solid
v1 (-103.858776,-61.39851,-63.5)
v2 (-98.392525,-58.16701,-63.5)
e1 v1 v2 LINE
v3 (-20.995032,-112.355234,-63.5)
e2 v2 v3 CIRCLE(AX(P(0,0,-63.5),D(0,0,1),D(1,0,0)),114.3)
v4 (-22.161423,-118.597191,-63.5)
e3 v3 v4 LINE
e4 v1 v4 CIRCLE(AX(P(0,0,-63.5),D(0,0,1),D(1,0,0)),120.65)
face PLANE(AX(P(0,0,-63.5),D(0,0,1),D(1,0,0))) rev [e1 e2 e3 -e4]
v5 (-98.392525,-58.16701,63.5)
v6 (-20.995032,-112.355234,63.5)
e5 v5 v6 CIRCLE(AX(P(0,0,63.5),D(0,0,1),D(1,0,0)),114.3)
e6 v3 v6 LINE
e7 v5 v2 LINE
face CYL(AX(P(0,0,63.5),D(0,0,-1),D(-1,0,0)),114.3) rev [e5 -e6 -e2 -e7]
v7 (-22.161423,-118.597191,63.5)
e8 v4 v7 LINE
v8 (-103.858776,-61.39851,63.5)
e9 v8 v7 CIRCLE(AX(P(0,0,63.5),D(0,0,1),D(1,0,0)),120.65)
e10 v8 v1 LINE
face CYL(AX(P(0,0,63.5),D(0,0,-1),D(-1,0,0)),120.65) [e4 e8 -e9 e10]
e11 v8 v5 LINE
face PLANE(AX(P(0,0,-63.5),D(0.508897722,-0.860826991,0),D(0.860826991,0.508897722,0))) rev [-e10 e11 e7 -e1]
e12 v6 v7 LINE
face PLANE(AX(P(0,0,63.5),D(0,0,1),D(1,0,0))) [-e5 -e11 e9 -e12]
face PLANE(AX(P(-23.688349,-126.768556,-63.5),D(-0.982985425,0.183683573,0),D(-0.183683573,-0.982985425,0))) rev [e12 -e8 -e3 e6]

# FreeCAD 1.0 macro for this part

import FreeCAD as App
import Part
import Sketcher

V = App.Vector
Q = App.Units.Quantity

doc = App.newDocument("Part")
params = doc.addObject("Spreadsheet::Sheet", "Params")
for row, (alias, value) in enumerate([
    ("sketch1_diameter", "9 in"),
    ("sketch1_diameter2", "9.5 in"),
    ("pad1_length", "5 in"),
    ("pocket1_length", "5 in"),
], start=1):
    params.set(f"A{row}", alias)
    params.set(f"B{row}", "=" + value)
    params.setAlias(f"B{row}", alias)

body = doc.addObject("PartDesign::Body", "Body")

# Sketch on XY plane
sketch1 = body.newObject("Sketcher::SketchObject", "Sketch")
sketch1.AttachmentSupport = (doc.getObject("XY_Plane"), [""])
sketch1.MapMode = "FlatFace"
sketch1.addGeometry([
    Part.Circle(V(0, 0, 0), V(0, 0, 1), 121),
    Part.Circle(V(0, 0, 0), V(0, 0, 1), 114),
], False)
sketch1.addConstraint([
    Sketcher.Constraint("Coincident", 0, 3, -1, 1),
    Sketcher.Constraint("Coincident", 1, 3, -1, 1),
    Sketcher.Constraint("Diameter", 1, Q("9 in")),
    Sketcher.Constraint("Diameter", 0, Q("9.5 in")),
])
sketch1.setExpression("Constraints[2]", "Params.sketch1_diameter")
sketch1.setExpression("Constraints[3]", "Params.sketch1_diameter2")
pad1 = body.newObject("PartDesign::Pad", "Pad")
pad1.Profile = sketch1
pad1.setExpression("Length", "Params.pad1_length")
pad1.Midplane = True

# Sketch on XY plane
sketch2 = body.newObject("Sketcher::SketchObject", "Sketch001")
sketch2.AttachmentSupport = (doc.getObject("XY_Plane"), [""])
sketch2.MapMode = "FlatFace"
sketch2.AttachmentOffset = App.Placement(V(0, 0, 2.5 * 25.4), App.Rotation())
sketch2.addGeometry([
    Part.LineSegment(V(0, 0, 0), V(-24, -127, 0)),  # 0
    Part.LineSegment(V(-24, -127, 0), V(155, -109, 0)),  # 1
    Part.LineSegment(V(155, -109, 0), V(181, -82, 0)),  # 2
    Part.LineSegment(V(181, -82, 0), V(139, 136, 0)),  # 3
    Part.LineSegment(V(139, 136, 0), V(-158, 117, 0)),  # 4
    Part.LineSegment(V(-158, 117, 0), V(-124, -73, 0)),  # 5
    Part.LineSegment(V(-124, -73, 0), V(0, 0, 0)),  # 6
], False)
sketch2.addConstraint([
    Sketcher.Constraint("Coincident", 0, 2, 1, 1),
    Sketcher.Constraint("Coincident", 1, 2, 2, 1),
    Sketcher.Constraint("Coincident", 2, 2, 3, 1),
    Sketcher.Constraint("Coincident", 3, 2, 4, 1),
    Sketcher.Constraint("Coincident", 4, 2, 5, 1),
    Sketcher.Constraint("Coincident", 5, 2, 6, 1),
    Sketcher.Constraint("Coincident", 6, 2, 0, 1),
    Sketcher.Constraint("Coincident", 6, 2, -1, 1),
    Sketcher.Constraint("DistanceY", 5, 2, 3, 2, Q("8.2409001 in")),
    Sketcher.Constraint("Distance", 2, Q("37.098001 mm")),
    Sketcher.Constraint("DistanceX", 3, 2, 2, 2, Q("41.921199 mm")),
    Sketcher.Constraint("Distance", 5, Q("192.896171 mm")),
    Sketcher.Constraint("DistanceX", 0, 2, -1, 1, Q("23.688349 mm")),
    Sketcher.Constraint("DistanceX", -1, 1, 2, 2, Q("181.323541 mm")),
    Sketcher.Constraint("DistanceX", 4, 2, -1, 1, Q("158.06589 mm")),
    Sketcher.Constraint("DistanceX", 5, 2, -1, 1, Q("123.61011 mm")),
    Sketcher.Constraint("DistanceY", 0, 2, 1, 2, Q("17.87823 mm")),
    Sketcher.Constraint("DistanceY", 2, 2, 3, 2, Q("218.50707 mm")),
    Sketcher.Constraint("DistanceX", 3, 2, 1, 2, Q("16.089891 mm")),
    Sketcher.Constraint("Distance", 0, Q("128.962804 mm")),
])
pocket1 = body.newObject("PartDesign::Pocket", "Pocket")
pocket1.Profile = sketch2
pocket1.setExpression("Length", "Params.pocket1_length")

doc.recompute()
